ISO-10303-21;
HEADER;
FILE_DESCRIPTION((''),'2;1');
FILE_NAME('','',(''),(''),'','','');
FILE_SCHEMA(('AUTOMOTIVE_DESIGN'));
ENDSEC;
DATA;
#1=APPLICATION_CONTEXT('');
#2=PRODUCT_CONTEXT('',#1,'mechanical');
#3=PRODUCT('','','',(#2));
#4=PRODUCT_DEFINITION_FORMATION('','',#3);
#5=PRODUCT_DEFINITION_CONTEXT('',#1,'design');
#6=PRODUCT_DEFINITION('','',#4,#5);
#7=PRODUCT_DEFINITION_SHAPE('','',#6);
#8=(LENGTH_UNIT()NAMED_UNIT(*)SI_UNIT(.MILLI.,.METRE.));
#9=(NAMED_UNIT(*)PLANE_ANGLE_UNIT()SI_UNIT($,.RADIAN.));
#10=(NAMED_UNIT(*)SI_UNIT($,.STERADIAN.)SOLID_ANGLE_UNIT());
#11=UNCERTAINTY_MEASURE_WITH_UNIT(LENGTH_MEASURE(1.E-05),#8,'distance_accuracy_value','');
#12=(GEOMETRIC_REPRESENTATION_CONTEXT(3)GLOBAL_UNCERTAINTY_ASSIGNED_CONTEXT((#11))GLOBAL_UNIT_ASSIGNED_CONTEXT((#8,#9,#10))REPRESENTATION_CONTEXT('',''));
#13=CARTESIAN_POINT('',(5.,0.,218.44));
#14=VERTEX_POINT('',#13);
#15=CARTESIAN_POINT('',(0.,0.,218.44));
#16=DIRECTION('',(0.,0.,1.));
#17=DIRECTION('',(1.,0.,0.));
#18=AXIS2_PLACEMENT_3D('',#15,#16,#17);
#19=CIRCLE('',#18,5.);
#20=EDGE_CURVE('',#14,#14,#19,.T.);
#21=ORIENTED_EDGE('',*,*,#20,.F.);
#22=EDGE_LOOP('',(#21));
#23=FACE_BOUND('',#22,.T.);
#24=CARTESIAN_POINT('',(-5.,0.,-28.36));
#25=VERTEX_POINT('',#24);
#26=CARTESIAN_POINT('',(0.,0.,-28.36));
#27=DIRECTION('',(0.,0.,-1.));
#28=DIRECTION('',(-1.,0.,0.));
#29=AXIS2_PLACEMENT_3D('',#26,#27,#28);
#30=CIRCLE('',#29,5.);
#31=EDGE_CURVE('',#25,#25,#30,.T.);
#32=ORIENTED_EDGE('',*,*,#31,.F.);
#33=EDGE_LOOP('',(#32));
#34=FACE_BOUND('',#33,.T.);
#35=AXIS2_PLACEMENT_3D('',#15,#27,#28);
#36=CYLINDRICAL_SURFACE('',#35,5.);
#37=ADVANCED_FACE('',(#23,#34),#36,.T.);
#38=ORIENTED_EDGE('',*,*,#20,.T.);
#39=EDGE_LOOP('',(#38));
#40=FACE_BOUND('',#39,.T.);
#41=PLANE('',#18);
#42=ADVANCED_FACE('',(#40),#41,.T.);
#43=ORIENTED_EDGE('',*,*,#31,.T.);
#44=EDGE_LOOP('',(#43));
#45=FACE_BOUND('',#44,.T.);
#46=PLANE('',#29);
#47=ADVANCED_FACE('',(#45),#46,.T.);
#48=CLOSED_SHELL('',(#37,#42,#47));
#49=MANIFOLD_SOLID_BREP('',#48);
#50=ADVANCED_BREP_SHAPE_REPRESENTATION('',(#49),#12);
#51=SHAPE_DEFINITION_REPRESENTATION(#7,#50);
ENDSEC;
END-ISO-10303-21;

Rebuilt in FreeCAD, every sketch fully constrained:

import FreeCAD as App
import Part
import Sketcher
from FreeCAD import Vector

doc = App.newDocument("Part")
body = doc.addObject("PartDesign::Body", "Body")

# Sketch on XY plane
sketch1 = body.newObject("Sketcher::SketchObject", "Sketch")
sketch1.AttachmentSupport = (doc.getObject("XY_Plane"), [""])
sketch1.MapMode = "FlatFace"
sketch1.addGeometry(Part.Circle(Vector(0, 0, 0), Vector(0, 0, 1), 5), False)
sketch1.addConstraint([
    Sketcher.Constraint("Coincident", 0, 3, -1, 1),
    Sketcher.Constraint("Diameter", 0, 10.0),
])
pad1 = body.newObject("PartDesign::Pad", "Pad")
pad1.Profile = sketch1
pad1.Length = 218.44

# Sketch on XY plane
sketch2 = body.newObject("Sketcher::SketchObject", "Sketch001")
sketch2.AttachmentSupport = (doc.getObject("XY_Plane"), [""])
sketch2.MapMode = "FlatFace"
sketch2.AttachmentOffset = App.Placement(Vector(0, 0, -28.36), App.Rotation())
sketch2.addGeometry(Part.Circle(Vector(0, 0, 0), Vector(0, 0, 1), 5), False)
sketch2.addConstraint([
    Sketcher.Constraint("Coincident", 0, 3, -1, 1),
    Sketcher.Constraint("Diameter", 0, 10.0),
])
pad2 = body.newObject("PartDesign::Pad", "Pad001")
pad2.Profile = sketch2
pad2.Length = 28.36

doc.recompute()
